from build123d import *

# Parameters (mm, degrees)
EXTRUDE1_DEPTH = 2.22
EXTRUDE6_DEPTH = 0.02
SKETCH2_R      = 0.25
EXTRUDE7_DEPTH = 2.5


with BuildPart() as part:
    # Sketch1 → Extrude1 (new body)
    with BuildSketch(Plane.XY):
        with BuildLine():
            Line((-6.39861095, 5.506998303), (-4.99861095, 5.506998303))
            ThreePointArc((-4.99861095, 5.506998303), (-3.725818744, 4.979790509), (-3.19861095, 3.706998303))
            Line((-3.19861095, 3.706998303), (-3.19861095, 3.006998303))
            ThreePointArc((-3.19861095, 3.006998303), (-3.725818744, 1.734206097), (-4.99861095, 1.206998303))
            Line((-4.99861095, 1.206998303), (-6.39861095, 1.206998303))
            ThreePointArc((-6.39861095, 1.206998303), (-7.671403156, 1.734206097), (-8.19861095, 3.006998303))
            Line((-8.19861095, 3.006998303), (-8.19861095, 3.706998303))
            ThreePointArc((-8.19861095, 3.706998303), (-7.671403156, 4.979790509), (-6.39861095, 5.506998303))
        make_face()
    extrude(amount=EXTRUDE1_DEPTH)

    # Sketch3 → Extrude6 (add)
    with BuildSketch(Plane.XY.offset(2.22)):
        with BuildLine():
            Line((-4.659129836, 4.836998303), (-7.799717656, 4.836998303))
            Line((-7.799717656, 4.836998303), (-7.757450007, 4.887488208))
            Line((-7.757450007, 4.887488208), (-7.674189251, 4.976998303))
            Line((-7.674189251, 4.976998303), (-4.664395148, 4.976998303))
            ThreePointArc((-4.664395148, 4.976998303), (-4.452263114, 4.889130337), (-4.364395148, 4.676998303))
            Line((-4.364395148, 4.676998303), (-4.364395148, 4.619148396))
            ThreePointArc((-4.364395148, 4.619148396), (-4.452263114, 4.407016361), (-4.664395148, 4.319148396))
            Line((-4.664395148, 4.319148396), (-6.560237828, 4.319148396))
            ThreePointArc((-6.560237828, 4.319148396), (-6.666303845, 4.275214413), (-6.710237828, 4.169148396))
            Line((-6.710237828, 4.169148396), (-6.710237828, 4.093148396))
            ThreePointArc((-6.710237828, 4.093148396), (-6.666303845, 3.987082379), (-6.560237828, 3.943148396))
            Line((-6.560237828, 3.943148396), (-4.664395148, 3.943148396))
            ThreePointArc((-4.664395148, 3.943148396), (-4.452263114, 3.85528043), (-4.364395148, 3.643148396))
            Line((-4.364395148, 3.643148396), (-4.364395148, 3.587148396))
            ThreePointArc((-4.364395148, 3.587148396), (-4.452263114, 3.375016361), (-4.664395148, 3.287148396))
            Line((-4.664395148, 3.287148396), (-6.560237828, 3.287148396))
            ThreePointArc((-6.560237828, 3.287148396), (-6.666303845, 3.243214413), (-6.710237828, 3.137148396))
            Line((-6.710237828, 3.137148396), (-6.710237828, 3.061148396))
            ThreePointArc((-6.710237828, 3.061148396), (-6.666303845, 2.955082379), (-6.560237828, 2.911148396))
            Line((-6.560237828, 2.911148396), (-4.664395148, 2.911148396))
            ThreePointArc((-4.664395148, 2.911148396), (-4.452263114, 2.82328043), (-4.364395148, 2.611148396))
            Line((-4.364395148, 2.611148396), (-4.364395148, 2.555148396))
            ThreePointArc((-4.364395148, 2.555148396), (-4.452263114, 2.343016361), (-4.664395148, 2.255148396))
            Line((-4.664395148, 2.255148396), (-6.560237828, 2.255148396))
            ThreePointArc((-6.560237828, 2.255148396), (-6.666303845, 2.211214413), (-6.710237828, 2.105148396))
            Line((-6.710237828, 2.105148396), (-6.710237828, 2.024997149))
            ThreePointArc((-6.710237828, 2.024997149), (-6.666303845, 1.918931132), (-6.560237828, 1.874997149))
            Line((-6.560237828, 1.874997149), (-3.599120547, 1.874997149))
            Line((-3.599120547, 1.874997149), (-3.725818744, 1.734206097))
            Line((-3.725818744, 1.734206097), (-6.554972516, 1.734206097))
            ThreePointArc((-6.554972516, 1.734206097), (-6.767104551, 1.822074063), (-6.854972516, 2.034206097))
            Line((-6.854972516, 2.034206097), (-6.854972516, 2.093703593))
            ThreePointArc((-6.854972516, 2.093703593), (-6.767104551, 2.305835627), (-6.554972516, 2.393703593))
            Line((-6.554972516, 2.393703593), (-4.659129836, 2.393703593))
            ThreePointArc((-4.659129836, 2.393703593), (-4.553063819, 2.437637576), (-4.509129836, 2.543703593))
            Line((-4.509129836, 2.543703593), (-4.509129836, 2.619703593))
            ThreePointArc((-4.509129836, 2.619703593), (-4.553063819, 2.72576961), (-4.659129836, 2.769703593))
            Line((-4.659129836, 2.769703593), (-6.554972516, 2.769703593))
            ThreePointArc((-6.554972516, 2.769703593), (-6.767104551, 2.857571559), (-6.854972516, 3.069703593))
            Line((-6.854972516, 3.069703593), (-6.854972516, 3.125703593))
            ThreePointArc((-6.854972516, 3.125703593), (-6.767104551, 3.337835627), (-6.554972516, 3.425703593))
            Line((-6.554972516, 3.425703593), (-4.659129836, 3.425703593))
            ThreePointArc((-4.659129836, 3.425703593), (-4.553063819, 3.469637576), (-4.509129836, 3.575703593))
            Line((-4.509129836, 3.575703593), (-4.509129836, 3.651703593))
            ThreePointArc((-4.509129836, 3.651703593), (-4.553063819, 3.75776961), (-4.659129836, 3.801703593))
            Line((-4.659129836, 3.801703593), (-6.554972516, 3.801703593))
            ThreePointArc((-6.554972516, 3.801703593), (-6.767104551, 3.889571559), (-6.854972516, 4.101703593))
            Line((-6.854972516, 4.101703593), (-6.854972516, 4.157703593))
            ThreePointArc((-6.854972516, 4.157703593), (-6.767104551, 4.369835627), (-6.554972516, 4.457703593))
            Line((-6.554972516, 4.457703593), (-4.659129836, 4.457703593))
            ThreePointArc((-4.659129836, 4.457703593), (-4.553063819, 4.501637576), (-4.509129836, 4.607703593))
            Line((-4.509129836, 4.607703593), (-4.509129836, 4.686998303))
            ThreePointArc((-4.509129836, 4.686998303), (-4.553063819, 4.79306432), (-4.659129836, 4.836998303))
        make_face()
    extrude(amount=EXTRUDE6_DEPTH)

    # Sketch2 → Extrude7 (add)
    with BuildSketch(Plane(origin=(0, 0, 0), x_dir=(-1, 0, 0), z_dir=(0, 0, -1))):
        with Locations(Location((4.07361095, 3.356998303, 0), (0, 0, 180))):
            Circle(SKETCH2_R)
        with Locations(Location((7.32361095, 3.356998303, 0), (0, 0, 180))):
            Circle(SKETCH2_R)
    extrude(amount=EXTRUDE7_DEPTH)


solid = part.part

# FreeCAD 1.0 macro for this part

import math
import FreeCAD as App
import Part
import Sketcher

doc = App.newDocument("Part")
body = doc.addObject("PartDesign::Body", "Body")

# Sketch on XY plane
sketch1 = doc.addObject("Sketcher::SketchObject", "Sketch")
body.addObject(sketch1)
sketch1.AttachmentSupport = (doc.XY_Plane, [""])
sketch1.MapMode = "FlatFace"
sketch1.addGeometry(Part.LineSegment(App.Vector(-4.998611, 5.506998, 0), App.Vector(-6.398611, 5.506998, 0)), False)
sketch1.addGeometry(Part.ArcOfCircle(Part.Circle(App.Vector(-6.398611, 3.706998, 0), App.Vector(0, 0, 1), 1.8), math.radians(90), math.radians(180)), False)
sketch1.addGeometry(Part.LineSegment(App.Vector(-8.198611, 3.706998, 0), App.Vector(-8.198611, 3.006998, 0)), False)
sketch1.addGeometry(Part.ArcOfCircle(Part.Circle(App.Vector(-6.398611, 3.006998, 0), App.Vector(0, 0, 1), 1.8), math.radians(180), math.radians(270)), False)
sketch1.addGeometry(Part.LineSegment(App.Vector(-6.398611, 1.206998, 0), App.Vector(-4.998611, 1.206998, 0)), False)
sketch1.addGeometry(Part.ArcOfCircle(Part.Circle(App.Vector(-4.998611, 3.006998, 0), App.Vector(0, 0, 1), 1.8), math.radians(-90), math.radians(0)), False)
sketch1.addGeometry(Part.LineSegment(App.Vector(-3.198611, 3.006998, 0), App.Vector(-3.198611, 3.706998, 0)), False)
sketch1.addGeometry(Part.ArcOfCircle(Part.Circle(App.Vector(-4.998611, 3.706998, 0), App.Vector(0, 0, 1), 1.8), math.radians(0), math.radians(90)), False)
sketch1.addConstraint(Sketcher.Constraint("Tangent", 0, 2, 1, 1))
sketch1.addConstraint(Sketcher.Constraint("Tangent", 1, 2, 2, 1))
sketch1.addConstraint(Sketcher.Constraint("Tangent", 2, 2, 3, 1))
sketch1.addConstraint(Sketcher.Constraint("Tangent", 3, 2, 4, 1))
sketch1.addConstraint(Sketcher.Constraint("Tangent", 4, 2, 5, 1))
sketch1.addConstraint(Sketcher.Constraint("Tangent", 5, 2, 6, 1))
sketch1.addConstraint(Sketcher.Constraint("Tangent", 6, 2, 7, 1))
sketch1.addConstraint(Sketcher.Constraint("Tangent", 7, 2, 0, 1))
sketch1.addConstraint(Sketcher.Constraint("Horizontal", 0))
sketch1.addConstraint(Sketcher.Constraint("Vertical", 2))
sketch1.addConstraint(Sketcher.Constraint("Horizontal", 4))
sketch1.addConstraint(Sketcher.Constraint("Vertical", 6))
sketch1.addConstraint(Sketcher.Constraint("Equal", 1, 3))
sketch1.addConstraint(Sketcher.Constraint("Equal", 3, 5))
sketch1.addConstraint(Sketcher.Constraint("Equal", 5, 7))
sketch1.addConstraint(Sketcher.Constraint("Radius", 1, 1.8))
sketch1.addConstraint(Sketcher.Constraint("DistanceX", 0, 2, 0, 1, 1.4))
sketch1.addConstraint(Sketcher.Constraint("DistanceY", 2, 2, 2, 1, 0.7))
sketch1.addConstraint(Sketcher.Constraint("DistanceY", -1, 1, 1, 3, 3.706998))
sketch1.addConstraint(Sketcher.Constraint("DistanceX", 1, 3, -1, 1, 6.398611))
pad1 = doc.addObject("PartDesign::Pad", "Pad")
body.addObject(pad1)
pad1.Profile = sketch1
pad1.Length = 2.22

# Sketch on XY plane
sketch2 = doc.addObject("Sketcher::SketchObject", "Sketch001")
body.addObject(sketch2)
sketch2.AttachmentSupport = (doc.XY_Plane, [""])
sketch2.MapMode = "FlatFace"
sketch2.AttachmentOffset = App.Placement(App.Vector(0, 0, 2.22), App.Rotation())
sketch2.addGeometry(Part.LineSegment(App.Vector(-7.799718, 4.836998, 0), App.Vector(-4.65913, 4.836998, 0)), False)
sketch2.addGeometry(Part.ArcOfCircle(Part.Circle(App.Vector(-4.65913, 4.686998, 0), App.Vector(0, 0, 1), 0.15), math.radians(0), math.radians(90)), False)
sketch2.addGeometry(Part.LineSegment(App.Vector(-4.50913, 4.686998, 0), App.Vector(-4.50913, 4.607704, 0)), False)
sketch2.addGeometry(Part.ArcOfCircle(Part.Circle(App.Vector(-4.65913, 4.607704, 0), App.Vector(0, 0, 1), 0.15), math.radians(-90), math.radians(0)), False)
sketch2.addGeometry(Part.LineSegment(App.Vector(-4.65913, 4.457704, 0), App.Vector(-6.554973, 4.457704, 0)), False)
sketch2.addGeometry(Part.ArcOfCircle(Part.Circle(App.Vector(-6.554973, 4.157704, 0), App.Vector(0, 0, 1), 0.3), math.radians(90), math.radians(180)), False)
sketch2.addGeometry(Part.LineSegment(App.Vector(-6.854973, 4.157704, 0), App.Vector(-6.854973, 4.101704, 0)), False)
sketch2.addGeometry(Part.ArcOfCircle(Part.Circle(App.Vector(-6.554973, 4.101704, 0), App.Vector(0, 0, 1), 0.3), math.radians(180), math.radians(270)), False)
sketch2.addGeometry(Part.LineSegment(App.Vector(-6.554973, 3.801704, 0), App.Vector(-4.65913, 3.801704, 0)), False)
sketch2.addGeometry(Part.ArcOfCircle(Part.Circle(App.Vector(-4.65913, 3.651704, 0), App.Vector(0, 0, 1), 0.15), math.radians(0), math.radians(90)), False)
sketch2.addGeometry(Part.LineSegment(App.Vector(-4.50913, 3.651704, 0), App.Vector(-4.50913, 3.575704, 0)), False)
sketch2.addGeometry(Part.ArcOfCircle(Part.Circle(App.Vector(-4.65913, 3.575704, 0), App.Vector(0, 0, 1), 0.15), math.radians(-90), math.radians(0)), False)
sketch2.addGeometry(Part.LineSegment(App.Vector(-4.65913, 3.425704, 0), App.Vector(-6.554973, 3.425704, 0)), False)
sketch2.addGeometry(Part.ArcOfCircle(Part.Circle(App.Vector(-6.554973, 3.125704, 0), App.Vector(0, 0, 1), 0.3), math.radians(90), math.radians(180)), False)
sketch2.addGeometry(Part.LineSegment(App.Vector(-6.854973, 3.125704, 0), App.Vector(-6.854973, 3.069704, 0)), False)
sketch2.addGeometry(Part.ArcOfCircle(Part.Circle(App.Vector(-6.554973, 3.069704, 0), App.Vector(0, 0, 1), 0.3), math.radians(180), math.radians(270)), False)
sketch2.addGeometry(Part.LineSegment(App.Vector(-6.554973, 2.769704, 0), App.Vector(-4.65913, 2.769704, 0)), False)
sketch2.addGeometry(Part.ArcOfCircle(Part.Circle(App.Vector(-4.65913, 2.619704, 0), App.Vector(0, 0, 1), 0.15), math.radians(0), math.radians(90)), False)
sketch2.addGeometry(Part.LineSegment(App.Vector(-4.50913, 2.619704, 0), App.Vector(-4.50913, 2.543704, 0)), False)
sketch2.addGeometry(Part.ArcOfCircle(Part.Circle(App.Vector(-4.65913, 2.543704, 0), App.Vector(0, 0, 1), 0.15), math.radians(-90), math.radians(0)), False)
sketch2.addGeometry(Part.LineSegment(App.Vector(-4.65913, 2.393704, 0), App.Vector(-6.554973, 2.393704, 0)), False)
sketch2.addGeometry(Part.ArcOfCircle(Part.Circle(App.Vector(-6.554973, 2.093704, 0), App.Vector(0, 0, 1), 0.3), math.radians(90), math.radians(180)), False)
sketch2.addGeometry(Part.LineSegment(App.Vector(-6.854973, 2.093704, 0), App.Vector(-6.854973, 2.034206, 0)), False)
sketch2.addGeometry(Part.ArcOfCircle(Part.Circle(App.Vector(-6.554973, 2.034206, 0), App.Vector(0, 0, 1), 0.3), math.radians(180), math.radians(270)), False)
sketch2.addGeometry(Part.LineSegment(App.Vector(-6.554973, 1.734206, 0), App.Vector(-3.725819, 1.734206, 0)), False)
sketch2.addGeometry(Part.LineSegment(App.Vector(-3.725819, 1.734206, 0), App.Vector(-3.599121, 1.874997, 0)), False)
sketch2.addGeometry(Part.LineSegment(App.Vector(-3.599121, 1.874997, 0), App.Vector(-6.560238, 1.874997, 0)), False)
sketch2.addGeometry(Part.ArcOfCircle(Part.Circle(App.Vector(-6.560238, 2.024997, 0), App.Vector(0, 0, 1), 0.15), math.radians(-180), math.radians(-90)), False)
sketch2.addGeometry(Part.LineSegment(App.Vector(-6.710238, 2.024997, 0), App.Vector(-6.710238, 2.105148, 0)), False)
sketch2.addGeometry(Part.ArcOfCircle(Part.Circle(App.Vector(-6.560238, 2.105148, 0), App.Vector(0, 0, 1), 0.15), math.radians(90), math.radians(180)), False)
sketch2.addGeometry(Part.LineSegment(App.Vector(-6.560238, 2.255148, 0), App.Vector(-4.664395, 2.255148, 0)), False)
sketch2.addGeometry(Part.ArcOfCircle(Part.Circle(App.Vector(-4.664395, 2.555148, 0), App.Vector(0, 0, 1), 0.3), math.radians(-90), math.radians(0)), False)
sketch2.addGeometry(Part.LineSegment(App.Vector(-4.364395, 2.555148, 0), App.Vector(-4.364395, 2.611148, 0)), False)
sketch2.addGeometry(Part.ArcOfCircle(Part.Circle(App.Vector(-4.664395, 2.611148, 0), App.Vector(0, 0, 1), 0.3), math.radians(0), math.radians(90)), False)
sketch2.addGeometry(Part.LineSegment(App.Vector(-4.664395, 2.911148, 0), App.Vector(-6.560238, 2.911148, 0)), False)
sketch2.addGeometry(Part.ArcOfCircle(Part.Circle(App.Vector(-6.560238, 3.061148, 0), App.Vector(0, 0, 1), 0.15), math.radians(-180), math.radians(-90)), False)
sketch2.addGeometry(Part.LineSegment(App.Vector(-6.710238, 3.061148, 0), App.Vector(-6.710238, 3.137148, 0)), False)
sketch2.addGeometry(Part.ArcOfCircle(Part.Circle(App.Vector(-6.560238, 3.137148, 0), App.Vector(0, 0, 1), 0.15), math.radians(90), math.radians(180)), False)
sketch2.addGeometry(Part.LineSegment(App.Vector(-6.560238, 3.287148, 0), App.Vector(-4.664395, 3.287148, 0)), False)
sketch2.addGeometry(Part.ArcOfCircle(Part.Circle(App.Vector(-4.664395, 3.587148, 0), App.Vector(0, 0, 1), 0.3), math.radians(-90), math.radians(0)), False)
sketch2.addGeometry(Part.LineSegment(App.Vector(-4.364395, 3.587148, 0), App.Vector(-4.364395, 3.643148, 0)), False)
sketch2.addGeometry(Part.ArcOfCircle(Part.Circle(App.Vector(-4.664395, 3.643148, 0), App.Vector(0, 0, 1), 0.3), math.radians(0), math.radians(90)), False)
sketch2.addGeometry(Part.LineSegment(App.Vector(-4.664395, 3.943148, 0), App.Vector(-6.560238, 3.943148, 0)), False)
sketch2.addGeometry(Part.ArcOfCircle(Part.Circle(App.Vector(-6.560238, 4.093148, 0), App.Vector(0, 0, 1), 0.15), math.radians(-180), math.radians(-90)), False)
sketch2.addGeometry(Part.LineSegment(App.Vector(-6.710238, 4.093148, 0), App.Vector(-6.710238, 4.169148, 0)), False)
sketch2.addGeometry(Part.ArcOfCircle(Part.Circle(App.Vector(-6.560238, 4.169148, 0), App.Vector(0, 0, 1), 0.15), math.radians(90), math.radians(180)), False)
sketch2.addGeometry(Part.LineSegment(App.Vector(-6.560238, 4.319148, 0), App.Vector(-4.664395, 4.319148, 0)), False)
sketch2.addGeometry(Part.ArcOfCircle(Part.Circle(App.Vector(-4.664395, 4.619148, 0), App.Vector(0, 0, 1), 0.3), math.radians(-90), math.radians(0)), False)
sketch2.addGeometry(Part.LineSegment(App.Vector(-4.364395, 4.619148, 0), App.Vector(-4.364395, 4.676998, 0)), False)
sketch2.addGeometry(Part.ArcOfCircle(Part.Circle(App.Vector(-4.664395, 4.676998, 0), App.Vector(0, 0, 1), 0.3), math.radians(0), math.radians(90)), False)
sketch2.addGeometry(Part.LineSegment(App.Vector(-4.664395, 4.976998, 0), App.Vector(-7.674189, 4.976998, 0)), False)
sketch2.addGeometry(Part.LineSegment(App.Vector(-7.674189, 4.976998, 0), App.Vector(-7.75745, 4.887488, 0)), False)
sketch2.addGeometry(Part.LineSegment(App.Vector(-7.75745, 4.887488, 0), App.Vector(-7.799718, 4.836998, 0)), False)
sketch2.addConstraint(Sketcher.Constraint("Tangent", 0, 2, 1, 2))
sketch2.addConstraint(Sketcher.Constraint("Tangent", 1, 1, 2, 1))
sketch2.addConstraint(Sketcher.Constraint("Tangent", 2, 2, 3, 2))
sketch2.addConstraint(Sketcher.Constraint("Tangent", 3, 1, 4, 1))
sketch2.addConstraint(Sketcher.Constraint("Tangent", 4, 2, 5, 1))
sketch2.addConstraint(Sketcher.Constraint("Tangent", 5, 2, 6, 1))
sketch2.addConstraint(Sketcher.Constraint("Tangent", 6, 2, 7, 1))
sketch2.addConstraint(Sketcher.Constraint("Tangent", 7, 2, 8, 1))
sketch2.addConstraint(Sketcher.Constraint("Tangent", 8, 2, 9, 2))
sketch2.addConstraint(Sketcher.Constraint("Tangent", 9, 1, 10, 1))
sketch2.addConstraint(Sketcher.Constraint("Tangent", 10, 2, 11, 2))
sketch2.addConstraint(Sketcher.Constraint("Tangent", 11, 1, 12, 1))
sketch2.addConstraint(Sketcher.Constraint("Tangent", 12, 2, 13, 1))
sketch2.addConstraint(Sketcher.Constraint("Tangent", 13, 2, 14, 1))
sketch2.addConstraint(Sketcher.Constraint("Tangent", 14, 2, 15, 1))
sketch2.addConstraint(Sketcher.Constraint("Tangent", 15, 2, 16, 1))
sketch2.addConstraint(Sketcher.Constraint("Tangent", 16, 2, 17, 2))
sketch2.addConstraint(Sketcher.Constraint("Tangent", 17, 1, 18, 1))
sketch2.addConstraint(Sketcher.Constraint("Tangent", 18, 2, 19, 2))
sketch2.addConstraint(Sketcher.Constraint("Tangent", 19, 1, 20, 1))
sketch2.addConstraint(Sketcher.Constraint("Tangent", 20, 2, 21, 1))
sketch2.addConstraint(Sketcher.Constraint("Tangent", 21, 2, 22, 1))
sketch2.addConstraint(Sketcher.Constraint("Tangent", 22, 2, 23, 1))
sketch2.addConstraint(Sketcher.Constraint("Tangent", 23, 2, 24, 1))
sketch2.addConstraint(Sketcher.Constraint("Coincident", 24, 2, 25, 1))
sketch2.addConstraint(Sketcher.Constraint("Coincident", 25, 2, 26, 1))
sketch2.addConstraint(Sketcher.Constraint("Tangent", 26, 2, 27, 2))
sketch2.addConstraint(Sketcher.Constraint("Tangent", 27, 1, 28, 1))
sketch2.addConstraint(Sketcher.Constraint("Tangent", 28, 2, 29, 2))
sketch2.addConstraint(Sketcher.Constraint("Tangent", 29, 1, 30, 1))
sketch2.addConstraint(Sketcher.Constraint("Tangent", 30, 2, 31, 1))
sketch2.addConstraint(Sketcher.Constraint("Tangent", 31, 2, 32, 1))
sketch2.addConstraint(Sketcher.Constraint("Tangent", 32, 2, 33, 1))
sketch2.addConstraint(Sketcher.Constraint("Tangent", 33, 2, 34, 1))
sketch2.addConstraint(Sketcher.Constraint("Tangent", 34, 2, 35, 2))
sketch2.addConstraint(Sketcher.Constraint("Tangent", 35, 1, 36, 1))
sketch2.addConstraint(Sketcher.Constraint("Tangent", 36, 2, 37, 2))
sketch2.addConstraint(Sketcher.Constraint("Tangent", 37, 1, 38, 1))
sketch2.addConstraint(Sketcher.Constraint("Tangent", 38, 2, 39, 1))
sketch2.addConstraint(Sketcher.Constraint("Tangent", 39, 2, 40, 1))
sketch2.addConstraint(Sketcher.Constraint("Tangent", 40, 2, 41, 1))
sketch2.addConstraint(Sketcher.Constraint("Tangent", 41, 2, 42, 1))
sketch2.addConstraint(Sketcher.Constraint("Tangent", 42, 2, 43, 2))
sketch2.addConstraint(Sketcher.Constraint("Tangent", 43, 1, 44, 1))
sketch2.addConstraint(Sketcher.Constraint("Tangent", 44, 2, 45, 2))
sketch2.addConstraint(Sketcher.Constraint("Tangent", 45, 1, 46, 1))
sketch2.addConstraint(Sketcher.Constraint("Tangent", 46, 2, 47, 1))
sketch2.addConstraint(Sketcher.Constraint("Tangent", 47, 2, 48, 1))
sketch2.addConstraint(Sketcher.Constraint("Tangent", 48, 2, 49, 1))
sketch2.addConstraint(Sketcher.Constraint("Tangent", 49, 2, 50, 1))
sketch2.addConstraint(Sketcher.Constraint("Coincident", 50, 2, 51, 1))
sketch2.addConstraint(Sketcher.Constraint("Coincident", 51, 2, 52, 1))
sketch2.addConstraint(Sketcher.Constraint("Coincident", 52, 2, 0, 1))
sketch2.addConstraint(Sketcher.Constraint("Horizontal", 0))
sketch2.addConstraint(Sketcher.Constraint("Vertical", 2))
sketch2.addConstraint(Sketcher.Constraint("Horizontal", 4))
sketch2.addConstraint(Sketcher.Constraint("Vertical", 6))
sketch2.addConstraint(Sketcher.Constraint("Horizontal", 8))
sketch2.addConstraint(Sketcher.Constraint("Vertical", 10))
sketch2.addConstraint(Sketcher.Constraint("Horizontal", 12))
sketch2.addConstraint(Sketcher.Constraint("Vertical", 14))
sketch2.addConstraint(Sketcher.Constraint("Horizontal", 16))
sketch2.addConstraint(Sketcher.Constraint("Vertical", 18))
sketch2.addConstraint(Sketcher.Constraint("Horizontal", 20))
sketch2.addConstraint(Sketcher.Constraint("Vertical", 22))
sketch2.addConstraint(Sketcher.Constraint("Horizontal", 24))
sketch2.addConstraint(Sketcher.Constraint("Horizontal", 26))
sketch2.addConstraint(Sketcher.Constraint("Vertical", 28))
sketch2.addConstraint(Sketcher.Constraint("Horizontal", 30))
sketch2.addConstraint(Sketcher.Constraint("Vertical", 32))
sketch2.addConstraint(Sketcher.Constraint("Horizontal", 34))
sketch2.addConstraint(Sketcher.Constraint("Vertical", 36))
sketch2.addConstraint(Sketcher.Constraint("Horizontal", 38))
sketch2.addConstraint(Sketcher.Constraint("Vertical", 40))
sketch2.addConstraint(Sketcher.Constraint("Horizontal", 42))
sketch2.addConstraint(Sketcher.Constraint("Vertical", 44))
sketch2.addConstraint(Sketcher.Constraint("Horizontal", 46))
sketch2.addConstraint(Sketcher.Constraint("Vertical", 48))
sketch2.addConstraint(Sketcher.Constraint("Horizontal", 50))
sketch2.addConstraint(Sketcher.Constraint("Equal", 1, 3))
sketch2.addConstraint(Sketcher.Constraint("Equal", 5, 7))
sketch2.addConstraint(Sketcher.Constraint("Equal", 3, 9))
sketch2.addConstraint(Sketcher.Constraint("Equal", 9, 11))
sketch2.addConstraint(Sketcher.Constraint("Equal", 7, 13))
sketch2.addConstraint(Sketcher.Constraint("Equal", 13, 15))
sketch2.addConstraint(Sketcher.Constraint("Equal", 11, 17))
sketch2.addConstraint(Sketcher.Constraint("Equal", 17, 19))
sketch2.addConstraint(Sketcher.Constraint("Equal", 15, 21))
sketch2.addConstraint(Sketcher.Constraint("Equal", 21, 23))
sketch2.addConstraint(Sketcher.Constraint("Equal", 19, 27))
sketch2.addConstraint(Sketcher.Constraint("Equal", 27, 29))
sketch2.addConstraint(Sketcher.Constraint("Equal", 23, 31))
sketch2.addConstraint(Sketcher.Constraint("Equal", 31, 33))
sketch2.addConstraint(Sketcher.Constraint("Equal", 29, 35))
sketch2.addConstraint(Sketcher.Constraint("Equal", 35, 37))
sketch2.addConstraint(Sketcher.Constraint("Equal", 33, 39))
sketch2.addConstraint(Sketcher.Constraint("Equal", 39, 41))
sketch2.addConstraint(Sketcher.Constraint("Equal", 37, 43))
sketch2.addConstraint(Sketcher.Constraint("Equal", 43, 45))
sketch2.addConstraint(Sketcher.Constraint("Equal", 41, 47))
sketch2.addConstraint(Sketcher.Constraint("Equal", 47, 49))
sketch2.addConstraint(Sketcher.Constraint("Vertical", 3, 3, 9, 3))
sketch2.addConstraint(Sketcher.Constraint("Vertical", 7, 3, 13, 3))
sketch2.addConstraint(Sketcher.Constraint("Vertical", 11, 3, 17, 3))
sketch2.addConstraint(Sketcher.Constraint("Vertical", 15, 3, 21, 3))
sketch2.addConstraint(Sketcher.Constraint("Vertical", 29, 3, 35, 3))
sketch2.addConstraint(Sketcher.Constraint("Vertical", 33, 3, 39, 3))
sketch2.addConstraint(Sketcher.Constraint("Vertical", 37, 3, 43, 3))
sketch2.addConstraint(Sketcher.Constraint("Vertical", 41, 3, 47, 3))
sketch2.addConstraint(Sketcher.Constraint("Equal", 20, 30))
sketch2.addConstraint(Sketcher.Constraint("Equal", 6, 14))
sketch2.addConstraint(Sketcher.Constraint("Equal", 10, 18))
sketch2.addConstraint(Sketcher.Constraint("Equal", 14, 32))
sketch2.addConstraint(Sketcher.Constraint("Equal", 18, 36))
sketch2.addConstraint(Sketcher.Constraint("Equal", 32, 40))
sketch2.addConstraint(Sketcher.Constraint("Equal", 36, 44))
sketch2.addConstraint(Sketcher.Constraint("Radius", 5, 0.3))
sketch2.addConstraint(Sketcher.Constraint("Radius", 1, 0.15))
sketch2.addConstraint(Sketcher.Constraint("DistanceY", 6, 2, 6, 1, 0.056))
sketch2.addConstraint(Sketcher.Constraint("DistanceY", 10, 2, 10, 1, 0.076))
sketch2.addConstraint(Sketcher.Constraint("DistanceY", -1, 1, 1, 3, 4.686998))
sketch2.addConstraint(Sketcher.Constraint("DistanceY", -1, 1, 49, 3, 4.676998))
sketch2.addConstraint(Sketcher.Constraint("DistanceY", 28, 1, 28, 2, 0.080151))
sketch2.addConstraint(Sketcher.Constraint("DistanceY", 48, 1, 48, 2, 0.05785))
sketch2.addConstraint(Sketcher.Constraint("DistanceX", 0, 1, 0, 2, 3.140588))
sketch2.addConstraint(Sketcher.Constraint("DistanceX", 4, 2, 4, 1, 1.895843))
sketch2.addConstraint(Sketcher.Constraint("DistanceX", 24, 1, 24, 2, 2.829154))
sketch2.addConstraint(Sketcher.Constraint("DistanceX", 26, 2, 26, 1, 2.961117))
sketch2.addConstraint(Sketcher.Constraint("DistanceX", 50, 2, 50, 1, 3.009794))
sketch2.addConstraint(Sketcher.Constraint("DistanceY", 2, 2, 2, 1, 0.079295))
sketch2.addConstraint(Sketcher.Constraint("DistanceY", 22, 2, 22, 1, 0.059497))
sketch2.addConstraint(Sketcher.Constraint("DistanceX", 1, 3, -1, 1, 4.65913))
sketch2.addConstraint(Sketcher.Constraint("DistanceX", 25, 2, -1, 1, 3.599121))
sketch2.addConstraint(Sketcher.Constraint("DistanceX", 51, 2, -1, 1, 7.75745))
sketch2.addConstraint(Sketcher.Constraint("DistanceY", -1, 1, 51, 2, 4.887488))
pad2 = doc.addObject("PartDesign::Pad", "Pad001")
body.addObject(pad2)
pad2.Profile = sketch2
pad2.Length = 0.02

# Sketch on XY plane
sketch3 = doc.addObject("Sketcher::SketchObject", "Sketch002")
body.addObject(sketch3)
sketch3.AttachmentSupport = (doc.XY_Plane, [""])
sketch3.MapMode = "FlatFace"
sketch3.addGeometry(Part.Circle(App.Vector(-4.073611, 3.356998, 0), App.Vector(0, 0, 1), 0.25), False)
sketch3.addGeometry(Part.Circle(App.Vector(-7.323611, 3.356998, 0), App.Vector(0, 0, 1), 0.25), False)
sketch3.addConstraint(Sketcher.Constraint("Equal", 0, 1))
sketch3.addConstraint(Sketcher.Constraint("Horizontal", 0, 3, 1, 3))
sketch3.addConstraint(Sketcher.Constraint("Diameter", 0, 0.5))
sketch3.addConstraint(Sketcher.Constraint("DistanceX", 1, 3, 0, 3, 3.25))
sketch3.addConstraint(Sketcher.Constraint("DistanceY", -1, 1, 0, 3, 3.356998))
sketch3.addConstraint(Sketcher.Constraint("DistanceX", 0, 3, -1, 1, 4.073611))
pad3 = doc.addObject("PartDesign::Pad", "Pad002")
body.addObject(pad3)
pad3.Profile = sketch3
pad3.Length = 2.5
pad3.Reversed = True

doc.recompute()
